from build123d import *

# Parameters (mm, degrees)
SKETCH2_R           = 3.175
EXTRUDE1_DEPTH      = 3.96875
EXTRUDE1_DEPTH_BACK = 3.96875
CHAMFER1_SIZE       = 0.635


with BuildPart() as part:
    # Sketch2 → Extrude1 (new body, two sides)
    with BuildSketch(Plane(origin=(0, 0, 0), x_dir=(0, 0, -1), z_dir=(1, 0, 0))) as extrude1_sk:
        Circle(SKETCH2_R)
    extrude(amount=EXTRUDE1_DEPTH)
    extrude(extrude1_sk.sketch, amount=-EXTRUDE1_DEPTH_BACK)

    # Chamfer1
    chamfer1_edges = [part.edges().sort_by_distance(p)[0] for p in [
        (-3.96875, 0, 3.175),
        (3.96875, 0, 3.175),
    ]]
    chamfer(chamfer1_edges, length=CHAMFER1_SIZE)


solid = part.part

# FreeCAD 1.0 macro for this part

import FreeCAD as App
import Part
import Sketcher

V = App.Vector
Q = App.Units.Quantity


def edges_at(feature, points):
    """Names of the edges that pass closest to the given points."""
    edges = feature.Shape.Edges
    near = lambda p: min(range(len(edges)), key=lambda i: edges[i].distToShape(Part.Vertex(*p))[0])
    return sorted({f"Edge{near(p) + 1}" for p in points})

doc = App.newDocument("Part")
body = doc.addObject("PartDesign::Body", "Body")

sketch1 = body.newObject("Sketcher::SketchObject", "Sketch")
sketch1.AttachmentSupport = (doc.getObject("YZ_Plane"), [""])
sketch1.MapMode = "FlatFace"
sketch1.addGeometry(Part.Circle(V(0, 0, 0), V(0, 0, 1), 3.2), False)
sketch1.addConstraint([
    Sketcher.Constraint("Coincident", 0, 3, -1, 1),
    Sketcher.Constraint("Diameter", 0, Q("0.25 in")),
])
pad1 = body.newObject("PartDesign::Pad", "Pad")
pad1.Profile = sketch1
pad1.Type = "TwoLengths"
pad1.Length = Q("0.15625 in")
pad1.Length2 = Q("0.15625 in")
doc.recompute()

chamfer = body.newObject("PartDesign::Chamfer", "Chamfer")
chamfer.Base = (pad1, edges_at(pad1, [(-3.969, 0, 3.175), (3.969, 0, 3.175)]))
chamfer.Size = Q("0.025 in")

doc.recompute()
